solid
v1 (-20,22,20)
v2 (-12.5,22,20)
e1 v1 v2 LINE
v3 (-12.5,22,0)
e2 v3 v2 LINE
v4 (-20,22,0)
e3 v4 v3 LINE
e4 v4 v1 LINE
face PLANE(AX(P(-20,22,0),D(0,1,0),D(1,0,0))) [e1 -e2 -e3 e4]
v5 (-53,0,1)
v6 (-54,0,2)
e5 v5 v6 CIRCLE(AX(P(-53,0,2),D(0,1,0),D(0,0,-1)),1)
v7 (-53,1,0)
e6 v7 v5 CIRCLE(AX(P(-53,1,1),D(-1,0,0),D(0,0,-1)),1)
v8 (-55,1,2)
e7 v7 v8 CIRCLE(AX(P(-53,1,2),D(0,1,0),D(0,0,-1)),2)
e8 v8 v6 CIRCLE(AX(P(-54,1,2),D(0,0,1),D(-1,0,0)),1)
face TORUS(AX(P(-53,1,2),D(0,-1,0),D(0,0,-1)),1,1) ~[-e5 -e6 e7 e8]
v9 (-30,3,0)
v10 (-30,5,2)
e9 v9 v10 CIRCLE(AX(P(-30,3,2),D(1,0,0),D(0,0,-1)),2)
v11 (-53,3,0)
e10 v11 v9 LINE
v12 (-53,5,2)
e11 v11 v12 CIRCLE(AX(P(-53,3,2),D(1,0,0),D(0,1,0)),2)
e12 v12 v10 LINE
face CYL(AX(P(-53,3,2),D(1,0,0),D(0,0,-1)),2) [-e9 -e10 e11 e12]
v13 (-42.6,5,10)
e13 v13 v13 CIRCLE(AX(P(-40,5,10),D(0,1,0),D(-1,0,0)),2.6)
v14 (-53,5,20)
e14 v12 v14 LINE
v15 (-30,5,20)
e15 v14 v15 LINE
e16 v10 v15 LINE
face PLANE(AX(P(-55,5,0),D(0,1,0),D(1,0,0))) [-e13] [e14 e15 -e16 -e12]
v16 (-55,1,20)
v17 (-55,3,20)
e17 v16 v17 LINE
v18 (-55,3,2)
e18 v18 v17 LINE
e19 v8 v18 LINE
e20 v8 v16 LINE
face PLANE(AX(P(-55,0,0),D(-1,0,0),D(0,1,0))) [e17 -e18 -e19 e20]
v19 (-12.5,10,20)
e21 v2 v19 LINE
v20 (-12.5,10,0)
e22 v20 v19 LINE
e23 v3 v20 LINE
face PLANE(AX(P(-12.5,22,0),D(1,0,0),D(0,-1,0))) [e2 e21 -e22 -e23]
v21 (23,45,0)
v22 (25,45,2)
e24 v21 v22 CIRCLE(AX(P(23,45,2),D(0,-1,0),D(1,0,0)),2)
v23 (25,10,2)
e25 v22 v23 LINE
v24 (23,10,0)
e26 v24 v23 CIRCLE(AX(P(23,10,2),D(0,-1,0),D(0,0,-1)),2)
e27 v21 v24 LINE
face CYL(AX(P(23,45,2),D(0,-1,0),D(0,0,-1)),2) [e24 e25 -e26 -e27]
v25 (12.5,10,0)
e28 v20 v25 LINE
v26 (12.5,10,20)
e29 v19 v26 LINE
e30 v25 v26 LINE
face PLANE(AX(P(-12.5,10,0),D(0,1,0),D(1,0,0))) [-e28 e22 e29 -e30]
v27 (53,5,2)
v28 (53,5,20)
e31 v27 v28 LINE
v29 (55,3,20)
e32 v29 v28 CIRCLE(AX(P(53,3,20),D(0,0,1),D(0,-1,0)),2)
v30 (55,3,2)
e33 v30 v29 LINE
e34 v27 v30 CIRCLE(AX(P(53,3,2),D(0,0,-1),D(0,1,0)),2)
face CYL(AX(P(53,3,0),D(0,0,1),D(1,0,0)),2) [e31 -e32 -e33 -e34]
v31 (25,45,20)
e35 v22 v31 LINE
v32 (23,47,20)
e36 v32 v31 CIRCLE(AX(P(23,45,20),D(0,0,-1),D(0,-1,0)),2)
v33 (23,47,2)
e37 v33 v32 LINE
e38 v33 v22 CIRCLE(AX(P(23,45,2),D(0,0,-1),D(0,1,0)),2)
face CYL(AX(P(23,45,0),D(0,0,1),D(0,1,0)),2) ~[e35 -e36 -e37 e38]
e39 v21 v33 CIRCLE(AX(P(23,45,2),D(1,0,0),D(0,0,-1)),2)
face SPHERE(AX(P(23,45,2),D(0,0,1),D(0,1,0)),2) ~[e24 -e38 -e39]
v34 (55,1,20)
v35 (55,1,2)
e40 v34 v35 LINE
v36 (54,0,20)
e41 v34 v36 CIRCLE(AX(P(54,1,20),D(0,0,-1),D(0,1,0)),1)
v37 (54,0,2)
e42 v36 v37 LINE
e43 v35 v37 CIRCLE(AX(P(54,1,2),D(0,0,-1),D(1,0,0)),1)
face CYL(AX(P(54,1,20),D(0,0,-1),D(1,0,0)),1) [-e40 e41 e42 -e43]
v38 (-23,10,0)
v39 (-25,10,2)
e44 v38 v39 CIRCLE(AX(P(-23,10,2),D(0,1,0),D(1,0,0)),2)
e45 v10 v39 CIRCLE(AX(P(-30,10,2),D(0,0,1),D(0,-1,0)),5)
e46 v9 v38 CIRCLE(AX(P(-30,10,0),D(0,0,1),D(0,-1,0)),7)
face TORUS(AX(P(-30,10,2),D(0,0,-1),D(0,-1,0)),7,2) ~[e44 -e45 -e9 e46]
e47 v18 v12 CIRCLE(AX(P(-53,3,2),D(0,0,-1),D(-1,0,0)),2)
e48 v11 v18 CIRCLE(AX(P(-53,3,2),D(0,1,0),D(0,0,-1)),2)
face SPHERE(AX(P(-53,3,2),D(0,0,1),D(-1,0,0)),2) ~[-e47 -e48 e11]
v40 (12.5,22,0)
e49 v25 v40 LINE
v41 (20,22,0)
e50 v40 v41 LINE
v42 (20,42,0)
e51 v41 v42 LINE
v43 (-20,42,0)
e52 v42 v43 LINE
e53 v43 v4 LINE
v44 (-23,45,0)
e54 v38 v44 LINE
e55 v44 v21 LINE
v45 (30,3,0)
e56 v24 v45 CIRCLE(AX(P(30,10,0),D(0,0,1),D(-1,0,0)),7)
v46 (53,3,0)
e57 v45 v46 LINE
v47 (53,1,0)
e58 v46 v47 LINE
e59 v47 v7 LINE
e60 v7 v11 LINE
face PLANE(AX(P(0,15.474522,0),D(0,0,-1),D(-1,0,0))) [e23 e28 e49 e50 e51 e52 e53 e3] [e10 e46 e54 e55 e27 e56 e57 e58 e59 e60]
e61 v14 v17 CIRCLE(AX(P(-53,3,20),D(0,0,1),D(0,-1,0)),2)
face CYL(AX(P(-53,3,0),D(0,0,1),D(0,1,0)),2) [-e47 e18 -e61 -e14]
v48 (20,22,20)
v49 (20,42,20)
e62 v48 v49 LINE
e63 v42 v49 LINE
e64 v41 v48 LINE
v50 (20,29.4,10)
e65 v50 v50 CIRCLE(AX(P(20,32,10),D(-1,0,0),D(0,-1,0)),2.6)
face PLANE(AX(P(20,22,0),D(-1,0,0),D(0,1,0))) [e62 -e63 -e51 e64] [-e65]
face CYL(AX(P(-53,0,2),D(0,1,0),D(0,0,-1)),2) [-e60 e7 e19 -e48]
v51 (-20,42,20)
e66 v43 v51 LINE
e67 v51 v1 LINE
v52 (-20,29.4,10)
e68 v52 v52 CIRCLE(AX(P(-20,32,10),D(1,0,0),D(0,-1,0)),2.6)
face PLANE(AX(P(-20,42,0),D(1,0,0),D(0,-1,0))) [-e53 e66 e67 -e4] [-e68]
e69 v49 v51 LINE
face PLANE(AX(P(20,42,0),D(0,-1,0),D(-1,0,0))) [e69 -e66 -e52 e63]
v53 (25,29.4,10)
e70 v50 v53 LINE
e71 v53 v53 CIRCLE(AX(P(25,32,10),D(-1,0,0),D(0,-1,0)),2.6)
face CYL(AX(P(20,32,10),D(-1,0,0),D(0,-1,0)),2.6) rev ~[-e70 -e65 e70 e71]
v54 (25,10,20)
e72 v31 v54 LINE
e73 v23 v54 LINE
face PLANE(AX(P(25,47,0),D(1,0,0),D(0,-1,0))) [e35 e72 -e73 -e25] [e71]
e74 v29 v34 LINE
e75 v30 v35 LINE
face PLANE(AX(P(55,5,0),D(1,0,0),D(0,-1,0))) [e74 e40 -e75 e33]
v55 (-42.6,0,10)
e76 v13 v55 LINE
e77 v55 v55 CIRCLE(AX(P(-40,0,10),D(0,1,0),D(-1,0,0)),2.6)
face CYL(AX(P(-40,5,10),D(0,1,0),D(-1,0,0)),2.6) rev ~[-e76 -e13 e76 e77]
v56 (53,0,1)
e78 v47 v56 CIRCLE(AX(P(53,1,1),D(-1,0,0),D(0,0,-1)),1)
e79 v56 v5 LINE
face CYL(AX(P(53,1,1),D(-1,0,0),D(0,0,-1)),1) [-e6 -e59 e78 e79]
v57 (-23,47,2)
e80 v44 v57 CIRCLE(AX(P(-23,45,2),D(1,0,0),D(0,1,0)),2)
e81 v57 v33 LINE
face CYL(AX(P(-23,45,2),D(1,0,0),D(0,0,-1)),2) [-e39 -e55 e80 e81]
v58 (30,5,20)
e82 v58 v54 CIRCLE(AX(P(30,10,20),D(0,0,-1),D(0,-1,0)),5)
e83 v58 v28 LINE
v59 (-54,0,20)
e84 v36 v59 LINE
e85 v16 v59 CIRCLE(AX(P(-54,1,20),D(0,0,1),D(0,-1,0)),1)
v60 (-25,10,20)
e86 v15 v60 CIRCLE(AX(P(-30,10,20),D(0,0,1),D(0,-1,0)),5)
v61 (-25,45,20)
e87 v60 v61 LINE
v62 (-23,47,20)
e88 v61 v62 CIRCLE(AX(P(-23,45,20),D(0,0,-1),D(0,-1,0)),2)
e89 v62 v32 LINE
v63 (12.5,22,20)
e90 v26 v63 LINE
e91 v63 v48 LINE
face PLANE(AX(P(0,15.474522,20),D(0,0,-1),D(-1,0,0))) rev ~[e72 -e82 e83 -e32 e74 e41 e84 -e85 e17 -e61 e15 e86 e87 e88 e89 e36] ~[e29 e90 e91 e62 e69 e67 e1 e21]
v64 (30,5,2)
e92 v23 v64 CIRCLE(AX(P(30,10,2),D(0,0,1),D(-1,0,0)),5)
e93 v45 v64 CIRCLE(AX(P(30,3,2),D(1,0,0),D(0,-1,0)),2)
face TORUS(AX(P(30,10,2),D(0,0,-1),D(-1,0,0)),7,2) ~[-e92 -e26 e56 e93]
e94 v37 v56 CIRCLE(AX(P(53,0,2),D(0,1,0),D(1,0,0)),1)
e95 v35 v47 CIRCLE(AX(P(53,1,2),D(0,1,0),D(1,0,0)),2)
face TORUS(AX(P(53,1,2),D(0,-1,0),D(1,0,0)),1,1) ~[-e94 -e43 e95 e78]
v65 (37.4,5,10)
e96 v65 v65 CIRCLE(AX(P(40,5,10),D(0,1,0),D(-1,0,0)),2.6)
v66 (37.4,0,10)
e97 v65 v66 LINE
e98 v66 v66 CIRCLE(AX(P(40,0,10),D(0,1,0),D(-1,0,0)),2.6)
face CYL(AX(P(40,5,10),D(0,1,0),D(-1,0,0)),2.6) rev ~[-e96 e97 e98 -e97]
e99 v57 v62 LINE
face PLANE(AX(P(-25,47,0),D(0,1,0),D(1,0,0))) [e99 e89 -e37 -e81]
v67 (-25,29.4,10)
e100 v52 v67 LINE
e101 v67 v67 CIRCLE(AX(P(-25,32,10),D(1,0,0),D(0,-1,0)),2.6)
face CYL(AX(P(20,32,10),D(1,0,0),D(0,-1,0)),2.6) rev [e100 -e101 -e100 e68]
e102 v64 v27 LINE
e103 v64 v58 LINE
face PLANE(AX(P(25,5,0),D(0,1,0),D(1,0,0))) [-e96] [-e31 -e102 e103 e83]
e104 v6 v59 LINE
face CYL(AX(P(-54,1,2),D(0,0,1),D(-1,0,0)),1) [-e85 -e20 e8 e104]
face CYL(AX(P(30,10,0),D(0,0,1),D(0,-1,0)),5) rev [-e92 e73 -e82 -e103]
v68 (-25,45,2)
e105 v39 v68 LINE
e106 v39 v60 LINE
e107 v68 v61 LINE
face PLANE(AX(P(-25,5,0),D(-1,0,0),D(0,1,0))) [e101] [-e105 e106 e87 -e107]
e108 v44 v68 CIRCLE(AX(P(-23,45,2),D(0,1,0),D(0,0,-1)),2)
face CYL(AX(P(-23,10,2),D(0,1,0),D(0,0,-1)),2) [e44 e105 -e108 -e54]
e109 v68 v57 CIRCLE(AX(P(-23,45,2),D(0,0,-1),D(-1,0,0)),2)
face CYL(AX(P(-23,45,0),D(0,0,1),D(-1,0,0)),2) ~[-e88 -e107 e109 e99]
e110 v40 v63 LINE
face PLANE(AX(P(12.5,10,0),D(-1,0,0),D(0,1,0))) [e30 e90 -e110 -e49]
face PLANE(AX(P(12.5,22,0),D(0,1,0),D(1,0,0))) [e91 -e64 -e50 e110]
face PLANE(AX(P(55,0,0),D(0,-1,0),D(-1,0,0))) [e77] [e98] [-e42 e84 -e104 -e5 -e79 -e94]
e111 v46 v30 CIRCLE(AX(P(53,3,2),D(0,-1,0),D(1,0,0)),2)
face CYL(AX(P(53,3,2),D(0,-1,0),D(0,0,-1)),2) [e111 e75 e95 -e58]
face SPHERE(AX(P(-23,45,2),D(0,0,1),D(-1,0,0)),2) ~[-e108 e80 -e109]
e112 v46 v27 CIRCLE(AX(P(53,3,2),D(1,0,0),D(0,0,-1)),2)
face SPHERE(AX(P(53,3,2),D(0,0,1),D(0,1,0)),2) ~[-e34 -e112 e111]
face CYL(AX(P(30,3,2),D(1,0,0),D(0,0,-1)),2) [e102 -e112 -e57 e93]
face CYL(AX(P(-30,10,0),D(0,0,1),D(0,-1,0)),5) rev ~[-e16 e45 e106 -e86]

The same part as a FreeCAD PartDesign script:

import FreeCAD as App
import Part
import Sketcher
from FreeCAD import Vector
Q = App.Units.Quantity


def edges_at(feature, points):
    """Names of the edges that pass closest to the given points."""
    edges = feature.Shape.Edges
    near = lambda p: min(range(len(edges)), key=lambda i: edges[i].distToShape(Part.Vertex(*p))[0])
    return sorted({f"Edge{near(p) + 1}" for p in points})


def add_polygon(sketch, points):
    """Adds a closed chain of lines whose ends are joined by coincident constraints."""
    first, n = sketch.GeometryCount, len(points)
    for a, b in zip(points, points[1:] + points[:1]):
        sketch.addGeometry(Part.LineSegment(App.Vector(*a, 0), App.Vector(*b, 0)), False)
    for i in range(n):
        sketch.addConstraint(Sketcher.Constraint("Coincident", first + i, 2, first + (i + 1) % n, 1))

doc = App.newDocument("Part")
body = doc.addObject("PartDesign::Body", "Body")

# Sketch on XY plane
sketch1 = body.newObject("Sketcher::SketchObject", "Sketch")
sketch1.AttachmentSupport = (doc.getObject("XY_Plane"), [""])
sketch1.MapMode = "FlatFace"
add_polygon(sketch1, [(-55, 5), (-55, 0), (55, 0), (55, 5), (25, 5), (25, 47), (-25, 47), (-25, 5)])  # lines 0-7
add_polygon(sketch1, [(-20, 42), (20, 42), (20, 22), (12, 22), (12, 10), (-12, 10), (-12, 22), (-20, 22)])  # lines 8-15
sketch1.addConstraint(Sketcher.Constraint("Vertical", 0))
sketch1.addConstraint(Sketcher.Constraint("Horizontal", 1))
sketch1.addConstraint(Sketcher.Constraint("Vertical", 2))
sketch1.addConstraint(Sketcher.Constraint("Horizontal", 3))
sketch1.addConstraint(Sketcher.Constraint("Vertical", 4))
sketch1.addConstraint(Sketcher.Constraint("Horizontal", 5))
sketch1.addConstraint(Sketcher.Constraint("Vertical", 6))
sketch1.addConstraint(Sketcher.Constraint("Horizontal", 7))
sketch1.addConstraint(Sketcher.Constraint("Horizontal", 8))
sketch1.addConstraint(Sketcher.Constraint("Vertical", 9))
sketch1.addConstraint(Sketcher.Constraint("Horizontal", 10))
sketch1.addConstraint(Sketcher.Constraint("Vertical", 11))
sketch1.addConstraint(Sketcher.Constraint("Horizontal", 12))
sketch1.addConstraint(Sketcher.Constraint("Vertical", 13))
sketch1.addConstraint(Sketcher.Constraint("Horizontal", 14))
sketch1.addConstraint(Sketcher.Constraint("Vertical", 15))
sketch1.addConstraint(Sketcher.Constraint("Symmetric", 0, 2, 1, 2, -1, 1))
sketch1.addConstraint(Sketcher.Constraint("Symmetric", 3, 2, 6, 2, -2))
sketch1.addConstraint(Sketcher.Constraint("Symmetric", 10, 2, 13, 2, -2))
sketch1.addConstraint(Sketcher.Constraint("Equal", 10, 14))
sketch1.addConstraint(Sketcher.Constraint("DistanceX", 1, 1, 1, 2, Q("110 mm")))
sketch1.addConstraint(Sketcher.Constraint("DistanceX", 3, 2, 3, 1, Q("30 mm")))
sketch1.addConstraint(Sketcher.Constraint("DistanceX", 8, 1, 8, 2, Q("40 mm")))
sketch1.addConstraint(Sketcher.Constraint("DistanceX", 12, 2, 12, 1, Q("25 mm")))
sketch1.addConstraint(Sketcher.Constraint("DistanceY", 0, 2, 0, 1, Q("5 mm")))
sketch1.addConstraint(Sketcher.Constraint("DistanceY", 4, 1, 4, 2, Q("42 mm")))
sketch1.addConstraint(Sketcher.Constraint("DistanceY", 9, 2, 9, 1, Q("20 mm")))
sketch1.addConstraint(Sketcher.Constraint("DistanceY", 11, 2, 11, 1, Q("12 mm")))
sketch1.addConstraint(Sketcher.Constraint("DistanceY", -1, 1, 8, 2, Q("42 mm")))
pad1 = body.newObject("PartDesign::Pad", "Pad")
pad1.Profile = sketch1
pad1.Length = 20

# Sketch on XZ plane
sketch2 = body.newObject("Sketcher::SketchObject", "Sketch001")
sketch2.AttachmentSupport = (doc.getObject("XZ_Plane"), [""])
sketch2.MapMode = "FlatFace"
sketch2.AttachmentOffset = App.Placement(Vector(0, 0, -5), App.Rotation())
sketch2.addGeometry(Part.Circle(Vector(40, 10, 0), Vector(0, 0, 1), 2.6), False)
sketch2.addGeometry(Part.Circle(Vector(-40, 10, 0), Vector(0, 0, 1), 2.6), False)
sketch2.addConstraint(Sketcher.Constraint("Equal", 0, 1))
sketch2.addConstraint(Sketcher.Constraint("Symmetric", 0, 3, 1, 3, -2))
sketch2.addConstraint(Sketcher.Constraint("Diameter", 0, Q("5.2 mm")))
sketch2.addConstraint(Sketcher.Constraint("DistanceX", -1, 1, 0, 3, Q("40 mm")))
sketch2.addConstraint(Sketcher.Constraint("DistanceY", -1, 1, 0, 3, Q("10 mm")))
pocket1 = body.newObject("PartDesign::Pocket", "Pocket")
pocket1.Profile = sketch2
pocket1.Length = 5
pocket1.Reversed = True

# Sketch on YZ plane
sketch3 = body.newObject("Sketcher::SketchObject", "Sketch002")
sketch3.AttachmentSupport = (doc.getObject("YZ_Plane"), [""])
sketch3.MapMode = "FlatFace"
sketch3.AttachmentOffset = App.Placement(Vector(0, 0, 20), App.Rotation())
sketch3.addGeometry(Part.Circle(Vector(32, 10, 0), Vector(0, 0, 1), 2.6), False)
sketch3.addConstraint(Sketcher.Constraint("Diameter", 0, Q("5.2 mm")))
sketch3.addConstraint(Sketcher.Constraint("DistanceX", -1, 1, 0, 3, Q("32 mm")))
sketch3.addConstraint(Sketcher.Constraint("DistanceY", -1, 1, 0, 3, Q("10 mm")))
pocket2 = body.newObject("PartDesign::Pocket", "Pocket001")
pocket2.Profile = sketch3
pocket2.Type = "ThroughAll"
pocket2.Midplane = True
doc.recompute()

fillet = body.newObject("PartDesign::Fillet", "Fillet")
fillet.Base = (pocket2, edges_at(pocket2, [(25, 5, 10), (-25, 5, 10)]))
fillet.Radius = 5
doc.recompute()

fillet2 = body.newObject("PartDesign::Fillet", "Fillet001")
fillet2.Base = (fillet, edges_at(fillet, [
    (-55, 5, 10),
    (-25, 47, 10),
    (25, 47, 10),
    (55, 5, 10),
]))
fillet2.Radius = 2
doc.recompute()

fillet3 = body.newObject("PartDesign::Fillet", "Fillet002")
fillet3.Base = (fillet2, edges_at(fillet2, [(25, 27.5, 0)]))
fillet3.Radius = 2
doc.recompute()

fillet4 = body.newObject("PartDesign::Fillet", "Fillet003")
fillet4.Base = (fillet3, edges_at(fillet3, [(0, 0, 0)]))
fillet4.Radius = 1

doc.recompute()
